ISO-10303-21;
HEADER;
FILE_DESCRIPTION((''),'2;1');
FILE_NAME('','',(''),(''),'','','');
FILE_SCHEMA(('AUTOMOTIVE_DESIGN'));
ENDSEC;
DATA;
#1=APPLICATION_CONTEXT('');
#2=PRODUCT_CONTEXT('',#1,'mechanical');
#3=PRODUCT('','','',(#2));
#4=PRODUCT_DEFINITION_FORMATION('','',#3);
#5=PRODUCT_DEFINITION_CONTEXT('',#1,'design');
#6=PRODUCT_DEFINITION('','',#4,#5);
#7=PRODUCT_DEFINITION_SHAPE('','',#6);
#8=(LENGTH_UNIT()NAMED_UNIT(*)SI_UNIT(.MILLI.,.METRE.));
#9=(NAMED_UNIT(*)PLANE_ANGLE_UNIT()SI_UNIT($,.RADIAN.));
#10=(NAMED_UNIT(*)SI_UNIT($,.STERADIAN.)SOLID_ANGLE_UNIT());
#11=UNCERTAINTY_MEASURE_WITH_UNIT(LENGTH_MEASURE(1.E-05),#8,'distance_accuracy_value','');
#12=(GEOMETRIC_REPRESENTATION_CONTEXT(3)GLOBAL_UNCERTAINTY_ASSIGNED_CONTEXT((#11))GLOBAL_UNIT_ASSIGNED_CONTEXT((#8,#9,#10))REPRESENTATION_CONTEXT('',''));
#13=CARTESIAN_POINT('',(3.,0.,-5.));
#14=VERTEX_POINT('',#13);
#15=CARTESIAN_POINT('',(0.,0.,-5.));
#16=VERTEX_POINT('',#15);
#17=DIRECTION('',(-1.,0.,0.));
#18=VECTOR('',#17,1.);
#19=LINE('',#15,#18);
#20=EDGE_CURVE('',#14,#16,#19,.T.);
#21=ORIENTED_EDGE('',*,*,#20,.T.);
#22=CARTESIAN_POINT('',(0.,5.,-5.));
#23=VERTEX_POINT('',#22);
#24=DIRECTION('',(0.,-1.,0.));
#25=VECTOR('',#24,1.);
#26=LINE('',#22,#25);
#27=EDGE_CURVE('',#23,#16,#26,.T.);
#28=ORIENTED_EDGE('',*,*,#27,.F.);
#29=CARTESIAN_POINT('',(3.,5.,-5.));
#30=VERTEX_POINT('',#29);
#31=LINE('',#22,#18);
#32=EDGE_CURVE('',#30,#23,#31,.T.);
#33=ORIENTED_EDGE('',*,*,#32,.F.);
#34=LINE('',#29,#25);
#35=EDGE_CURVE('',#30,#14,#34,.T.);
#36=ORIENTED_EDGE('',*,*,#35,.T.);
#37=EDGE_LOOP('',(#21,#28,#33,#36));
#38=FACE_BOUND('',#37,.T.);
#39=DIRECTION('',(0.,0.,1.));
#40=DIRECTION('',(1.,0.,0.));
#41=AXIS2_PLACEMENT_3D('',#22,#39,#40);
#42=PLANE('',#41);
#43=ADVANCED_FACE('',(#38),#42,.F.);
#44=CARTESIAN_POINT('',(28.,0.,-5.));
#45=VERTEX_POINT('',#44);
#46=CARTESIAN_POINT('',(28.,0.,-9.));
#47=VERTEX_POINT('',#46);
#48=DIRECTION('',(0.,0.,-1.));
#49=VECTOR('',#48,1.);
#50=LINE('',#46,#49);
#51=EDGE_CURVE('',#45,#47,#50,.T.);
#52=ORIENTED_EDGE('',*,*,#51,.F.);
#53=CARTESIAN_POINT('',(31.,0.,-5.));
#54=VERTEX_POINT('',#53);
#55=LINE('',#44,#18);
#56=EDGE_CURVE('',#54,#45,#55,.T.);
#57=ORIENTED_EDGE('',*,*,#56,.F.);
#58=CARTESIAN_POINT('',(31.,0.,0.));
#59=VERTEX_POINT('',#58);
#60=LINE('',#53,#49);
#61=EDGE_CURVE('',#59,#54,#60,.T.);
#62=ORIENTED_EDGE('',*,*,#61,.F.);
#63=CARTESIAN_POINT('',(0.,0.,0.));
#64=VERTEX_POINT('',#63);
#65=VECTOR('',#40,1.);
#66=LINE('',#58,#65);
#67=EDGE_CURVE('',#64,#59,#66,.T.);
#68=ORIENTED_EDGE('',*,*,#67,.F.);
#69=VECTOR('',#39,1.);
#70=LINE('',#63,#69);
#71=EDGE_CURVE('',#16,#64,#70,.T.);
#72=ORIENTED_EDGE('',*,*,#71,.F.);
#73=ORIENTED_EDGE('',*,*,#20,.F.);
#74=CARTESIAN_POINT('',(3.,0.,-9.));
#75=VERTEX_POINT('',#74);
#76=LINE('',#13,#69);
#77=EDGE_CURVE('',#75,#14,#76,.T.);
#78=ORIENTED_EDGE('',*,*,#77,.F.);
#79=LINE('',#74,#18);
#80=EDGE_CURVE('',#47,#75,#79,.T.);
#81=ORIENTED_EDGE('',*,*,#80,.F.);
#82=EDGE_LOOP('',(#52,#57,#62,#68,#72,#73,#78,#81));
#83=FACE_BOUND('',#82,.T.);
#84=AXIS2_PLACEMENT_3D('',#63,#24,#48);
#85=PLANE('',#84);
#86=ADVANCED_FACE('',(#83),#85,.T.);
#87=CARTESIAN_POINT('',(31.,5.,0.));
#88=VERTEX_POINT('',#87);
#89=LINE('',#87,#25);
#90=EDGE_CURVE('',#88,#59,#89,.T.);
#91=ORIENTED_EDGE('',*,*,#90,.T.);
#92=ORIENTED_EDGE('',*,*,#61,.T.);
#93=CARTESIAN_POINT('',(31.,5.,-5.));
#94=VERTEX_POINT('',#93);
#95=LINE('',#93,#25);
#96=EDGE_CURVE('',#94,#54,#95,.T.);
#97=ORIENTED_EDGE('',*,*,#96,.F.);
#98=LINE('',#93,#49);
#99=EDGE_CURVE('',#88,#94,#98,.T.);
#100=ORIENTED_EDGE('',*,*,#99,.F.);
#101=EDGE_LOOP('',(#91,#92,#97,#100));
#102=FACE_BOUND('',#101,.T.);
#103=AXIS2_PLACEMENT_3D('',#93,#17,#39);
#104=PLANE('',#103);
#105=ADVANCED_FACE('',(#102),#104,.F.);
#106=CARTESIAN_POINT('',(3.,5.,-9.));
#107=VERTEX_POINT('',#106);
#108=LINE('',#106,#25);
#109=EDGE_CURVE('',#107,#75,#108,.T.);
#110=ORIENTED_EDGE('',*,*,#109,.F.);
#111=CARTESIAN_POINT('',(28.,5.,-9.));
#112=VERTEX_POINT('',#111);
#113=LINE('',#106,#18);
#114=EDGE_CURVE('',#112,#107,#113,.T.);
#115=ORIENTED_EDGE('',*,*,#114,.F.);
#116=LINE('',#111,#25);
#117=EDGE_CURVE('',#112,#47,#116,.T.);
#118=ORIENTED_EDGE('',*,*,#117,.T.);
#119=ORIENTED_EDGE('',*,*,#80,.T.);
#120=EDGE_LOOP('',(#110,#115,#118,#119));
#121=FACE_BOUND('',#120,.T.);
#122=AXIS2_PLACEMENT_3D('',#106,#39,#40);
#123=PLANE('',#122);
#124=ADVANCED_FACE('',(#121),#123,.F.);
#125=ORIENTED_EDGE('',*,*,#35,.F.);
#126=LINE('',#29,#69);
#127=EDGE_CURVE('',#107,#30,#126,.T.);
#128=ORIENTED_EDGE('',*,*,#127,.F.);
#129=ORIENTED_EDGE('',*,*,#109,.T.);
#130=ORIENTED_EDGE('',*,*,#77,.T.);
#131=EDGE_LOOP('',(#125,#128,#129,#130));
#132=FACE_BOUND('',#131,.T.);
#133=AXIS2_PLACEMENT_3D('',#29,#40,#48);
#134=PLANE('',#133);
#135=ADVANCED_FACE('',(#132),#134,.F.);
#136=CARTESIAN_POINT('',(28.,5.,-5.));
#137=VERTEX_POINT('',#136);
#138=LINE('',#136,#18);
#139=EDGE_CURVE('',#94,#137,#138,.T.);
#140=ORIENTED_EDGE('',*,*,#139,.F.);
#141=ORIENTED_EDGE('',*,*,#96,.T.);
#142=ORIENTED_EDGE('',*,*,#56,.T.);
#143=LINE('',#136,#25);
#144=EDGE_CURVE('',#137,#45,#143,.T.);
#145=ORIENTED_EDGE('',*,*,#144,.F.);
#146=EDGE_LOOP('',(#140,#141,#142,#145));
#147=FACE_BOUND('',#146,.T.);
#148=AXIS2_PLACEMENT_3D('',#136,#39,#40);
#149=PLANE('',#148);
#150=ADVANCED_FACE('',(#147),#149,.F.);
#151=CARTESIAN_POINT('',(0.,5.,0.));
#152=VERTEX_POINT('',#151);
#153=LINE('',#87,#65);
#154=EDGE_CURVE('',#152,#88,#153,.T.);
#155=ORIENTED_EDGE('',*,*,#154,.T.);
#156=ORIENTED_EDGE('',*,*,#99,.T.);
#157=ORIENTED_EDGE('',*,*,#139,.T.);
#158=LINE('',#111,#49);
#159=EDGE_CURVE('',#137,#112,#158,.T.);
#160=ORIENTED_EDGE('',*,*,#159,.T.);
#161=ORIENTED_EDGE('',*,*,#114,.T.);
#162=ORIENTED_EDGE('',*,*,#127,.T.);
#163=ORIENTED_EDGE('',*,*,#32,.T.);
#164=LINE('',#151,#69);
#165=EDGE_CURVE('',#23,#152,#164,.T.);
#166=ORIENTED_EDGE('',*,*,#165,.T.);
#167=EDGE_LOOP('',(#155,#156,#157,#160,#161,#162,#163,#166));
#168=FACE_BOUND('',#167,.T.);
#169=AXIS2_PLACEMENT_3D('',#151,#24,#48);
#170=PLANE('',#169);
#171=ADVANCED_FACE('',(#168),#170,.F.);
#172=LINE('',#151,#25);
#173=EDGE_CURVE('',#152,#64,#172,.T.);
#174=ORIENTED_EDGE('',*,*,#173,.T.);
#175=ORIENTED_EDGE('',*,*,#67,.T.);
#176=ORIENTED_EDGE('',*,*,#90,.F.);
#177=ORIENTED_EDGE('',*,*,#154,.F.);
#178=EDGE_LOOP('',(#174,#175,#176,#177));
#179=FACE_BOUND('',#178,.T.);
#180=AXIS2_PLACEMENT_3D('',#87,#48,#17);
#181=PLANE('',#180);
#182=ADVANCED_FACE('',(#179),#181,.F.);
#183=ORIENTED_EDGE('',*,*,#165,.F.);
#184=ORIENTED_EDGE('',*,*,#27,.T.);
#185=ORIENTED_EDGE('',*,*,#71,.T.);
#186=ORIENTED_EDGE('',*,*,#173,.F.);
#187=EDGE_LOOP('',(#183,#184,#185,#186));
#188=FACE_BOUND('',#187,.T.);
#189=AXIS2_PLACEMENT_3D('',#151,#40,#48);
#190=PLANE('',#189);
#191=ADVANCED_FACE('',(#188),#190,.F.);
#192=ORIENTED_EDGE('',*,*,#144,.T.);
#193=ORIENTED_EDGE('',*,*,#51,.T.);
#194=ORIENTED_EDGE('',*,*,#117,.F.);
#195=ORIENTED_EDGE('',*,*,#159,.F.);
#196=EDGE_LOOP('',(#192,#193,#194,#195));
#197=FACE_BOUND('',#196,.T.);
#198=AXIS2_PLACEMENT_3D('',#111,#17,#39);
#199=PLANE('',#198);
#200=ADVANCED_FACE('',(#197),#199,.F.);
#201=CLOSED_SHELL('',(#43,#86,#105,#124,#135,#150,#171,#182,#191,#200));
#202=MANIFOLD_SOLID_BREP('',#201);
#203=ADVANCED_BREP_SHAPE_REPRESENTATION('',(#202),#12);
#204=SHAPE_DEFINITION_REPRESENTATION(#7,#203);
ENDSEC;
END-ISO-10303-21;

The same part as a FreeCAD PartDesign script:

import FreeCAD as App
import Part
import Sketcher
from FreeCAD import Vector
Q = App.Units.Quantity

doc = App.newDocument("Part")
params = doc.addObject("Spreadsheet::Sheet", "Params")
for row, (alias, value) in enumerate([
    ("sketch1_width", "31 mm"),
    ("sketch1_width2", "3 mm"),
    ("sketch1_height", "5 mm"),
    ("sketch1_height2", "4 mm"),
    ("pad1_length", "5 mm"),
], start=1):
    params.set(f"A{row}", alias)
    params.set(f"B{row}", "=" + value)
    params.setAlias(f"B{row}", alias)

body = doc.addObject("PartDesign::Body", "Body")

sketch1 = body.newObject("Sketcher::SketchObject", "Sketch")
sketch1.AttachmentSupport = (doc.getObject("XZ_Plane"), [""])
sketch1.MapMode = "FlatFace"
sketch1.addGeometry(Part.LineSegment(Vector(0, -5, 0), Vector(0, 0, 0)), False)
sketch1.addGeometry(Part.LineSegment(Vector(0, 0, 0), Vector(31, 0, 0)), False)
sketch1.addGeometry(Part.LineSegment(Vector(31, 0, 0), Vector(31, -5, 0)), False)
sketch1.addGeometry(Part.LineSegment(Vector(31, -5, 0), Vector(28, -5, 0)), False)
sketch1.addGeometry(Part.LineSegment(Vector(28, -5, 0), Vector(28, -9, 0)), False)
sketch1.addGeometry(Part.LineSegment(Vector(28, -9, 0), Vector(3, -9, 0)), False)
sketch1.addGeometry(Part.LineSegment(Vector(3, -9, 0), Vector(3, -5, 0)), False)
sketch1.addGeometry(Part.LineSegment(Vector(3, -5, 0), Vector(0, -5, 0)), False)
sketch1.addConstraint(Sketcher.Constraint("Coincident", 0, 2, 1, 1))
sketch1.addConstraint(Sketcher.Constraint("Coincident", 1, 2, 2, 1))
sketch1.addConstraint(Sketcher.Constraint("Coincident", 2, 2, 3, 1))
sketch1.addConstraint(Sketcher.Constraint("Coincident", 3, 2, 4, 1))
sketch1.addConstraint(Sketcher.Constraint("Coincident", 4, 2, 5, 1))
sketch1.addConstraint(Sketcher.Constraint("Coincident", 5, 2, 6, 1))
sketch1.addConstraint(Sketcher.Constraint("Coincident", 6, 2, 7, 1))
sketch1.addConstraint(Sketcher.Constraint("Coincident", 7, 2, 0, 1))
sketch1.addConstraint(Sketcher.Constraint("Vertical", 0))
sketch1.addConstraint(Sketcher.Constraint("Horizontal", 1))
sketch1.addConstraint(Sketcher.Constraint("Vertical", 2))
sketch1.addConstraint(Sketcher.Constraint("Horizontal", 3))
sketch1.addConstraint(Sketcher.Constraint("Vertical", 4))
sketch1.addConstraint(Sketcher.Constraint("Horizontal", 5))
sketch1.addConstraint(Sketcher.Constraint("Vertical", 6))
sketch1.addConstraint(Sketcher.Constraint("Horizontal", 7))
sketch1.addConstraint(Sketcher.Constraint("Coincident", 0, 2, -1, 1))
sketch1.addConstraint(Sketcher.Constraint("Horizontal", 3, 2, 6, 2))
sketch1.addConstraint(Sketcher.Constraint("Equal", 3, 7))
sketch1.addConstraint(Sketcher.Constraint("DistanceX", 1, 1, 1, 2, Q("31 mm")))
sketch1.addConstraint(Sketcher.Constraint("DistanceX", 3, 2, 3, 1, Q("3 mm")))
sketch1.addConstraint(Sketcher.Constraint("DistanceY", 0, 1, 0, 2, Q("5 mm")))
sketch1.addConstraint(Sketcher.Constraint("DistanceY", 4, 2, 4, 1, Q("4 mm")))
sketch1.setExpression("Constraints[19]", "Params.sketch1_width")
sketch1.setExpression("Constraints[20]", "Params.sketch1_width2")
sketch1.setExpression("Constraints[21]", "Params.sketch1_height")
sketch1.setExpression("Constraints[22]", "Params.sketch1_height2")
pad1 = body.newObject("PartDesign::Pad", "Pad")
pad1.Profile = sketch1
pad1.setExpression("Length", "Params.pad1_length")
pad1.Reversed = True

doc.recompute()
